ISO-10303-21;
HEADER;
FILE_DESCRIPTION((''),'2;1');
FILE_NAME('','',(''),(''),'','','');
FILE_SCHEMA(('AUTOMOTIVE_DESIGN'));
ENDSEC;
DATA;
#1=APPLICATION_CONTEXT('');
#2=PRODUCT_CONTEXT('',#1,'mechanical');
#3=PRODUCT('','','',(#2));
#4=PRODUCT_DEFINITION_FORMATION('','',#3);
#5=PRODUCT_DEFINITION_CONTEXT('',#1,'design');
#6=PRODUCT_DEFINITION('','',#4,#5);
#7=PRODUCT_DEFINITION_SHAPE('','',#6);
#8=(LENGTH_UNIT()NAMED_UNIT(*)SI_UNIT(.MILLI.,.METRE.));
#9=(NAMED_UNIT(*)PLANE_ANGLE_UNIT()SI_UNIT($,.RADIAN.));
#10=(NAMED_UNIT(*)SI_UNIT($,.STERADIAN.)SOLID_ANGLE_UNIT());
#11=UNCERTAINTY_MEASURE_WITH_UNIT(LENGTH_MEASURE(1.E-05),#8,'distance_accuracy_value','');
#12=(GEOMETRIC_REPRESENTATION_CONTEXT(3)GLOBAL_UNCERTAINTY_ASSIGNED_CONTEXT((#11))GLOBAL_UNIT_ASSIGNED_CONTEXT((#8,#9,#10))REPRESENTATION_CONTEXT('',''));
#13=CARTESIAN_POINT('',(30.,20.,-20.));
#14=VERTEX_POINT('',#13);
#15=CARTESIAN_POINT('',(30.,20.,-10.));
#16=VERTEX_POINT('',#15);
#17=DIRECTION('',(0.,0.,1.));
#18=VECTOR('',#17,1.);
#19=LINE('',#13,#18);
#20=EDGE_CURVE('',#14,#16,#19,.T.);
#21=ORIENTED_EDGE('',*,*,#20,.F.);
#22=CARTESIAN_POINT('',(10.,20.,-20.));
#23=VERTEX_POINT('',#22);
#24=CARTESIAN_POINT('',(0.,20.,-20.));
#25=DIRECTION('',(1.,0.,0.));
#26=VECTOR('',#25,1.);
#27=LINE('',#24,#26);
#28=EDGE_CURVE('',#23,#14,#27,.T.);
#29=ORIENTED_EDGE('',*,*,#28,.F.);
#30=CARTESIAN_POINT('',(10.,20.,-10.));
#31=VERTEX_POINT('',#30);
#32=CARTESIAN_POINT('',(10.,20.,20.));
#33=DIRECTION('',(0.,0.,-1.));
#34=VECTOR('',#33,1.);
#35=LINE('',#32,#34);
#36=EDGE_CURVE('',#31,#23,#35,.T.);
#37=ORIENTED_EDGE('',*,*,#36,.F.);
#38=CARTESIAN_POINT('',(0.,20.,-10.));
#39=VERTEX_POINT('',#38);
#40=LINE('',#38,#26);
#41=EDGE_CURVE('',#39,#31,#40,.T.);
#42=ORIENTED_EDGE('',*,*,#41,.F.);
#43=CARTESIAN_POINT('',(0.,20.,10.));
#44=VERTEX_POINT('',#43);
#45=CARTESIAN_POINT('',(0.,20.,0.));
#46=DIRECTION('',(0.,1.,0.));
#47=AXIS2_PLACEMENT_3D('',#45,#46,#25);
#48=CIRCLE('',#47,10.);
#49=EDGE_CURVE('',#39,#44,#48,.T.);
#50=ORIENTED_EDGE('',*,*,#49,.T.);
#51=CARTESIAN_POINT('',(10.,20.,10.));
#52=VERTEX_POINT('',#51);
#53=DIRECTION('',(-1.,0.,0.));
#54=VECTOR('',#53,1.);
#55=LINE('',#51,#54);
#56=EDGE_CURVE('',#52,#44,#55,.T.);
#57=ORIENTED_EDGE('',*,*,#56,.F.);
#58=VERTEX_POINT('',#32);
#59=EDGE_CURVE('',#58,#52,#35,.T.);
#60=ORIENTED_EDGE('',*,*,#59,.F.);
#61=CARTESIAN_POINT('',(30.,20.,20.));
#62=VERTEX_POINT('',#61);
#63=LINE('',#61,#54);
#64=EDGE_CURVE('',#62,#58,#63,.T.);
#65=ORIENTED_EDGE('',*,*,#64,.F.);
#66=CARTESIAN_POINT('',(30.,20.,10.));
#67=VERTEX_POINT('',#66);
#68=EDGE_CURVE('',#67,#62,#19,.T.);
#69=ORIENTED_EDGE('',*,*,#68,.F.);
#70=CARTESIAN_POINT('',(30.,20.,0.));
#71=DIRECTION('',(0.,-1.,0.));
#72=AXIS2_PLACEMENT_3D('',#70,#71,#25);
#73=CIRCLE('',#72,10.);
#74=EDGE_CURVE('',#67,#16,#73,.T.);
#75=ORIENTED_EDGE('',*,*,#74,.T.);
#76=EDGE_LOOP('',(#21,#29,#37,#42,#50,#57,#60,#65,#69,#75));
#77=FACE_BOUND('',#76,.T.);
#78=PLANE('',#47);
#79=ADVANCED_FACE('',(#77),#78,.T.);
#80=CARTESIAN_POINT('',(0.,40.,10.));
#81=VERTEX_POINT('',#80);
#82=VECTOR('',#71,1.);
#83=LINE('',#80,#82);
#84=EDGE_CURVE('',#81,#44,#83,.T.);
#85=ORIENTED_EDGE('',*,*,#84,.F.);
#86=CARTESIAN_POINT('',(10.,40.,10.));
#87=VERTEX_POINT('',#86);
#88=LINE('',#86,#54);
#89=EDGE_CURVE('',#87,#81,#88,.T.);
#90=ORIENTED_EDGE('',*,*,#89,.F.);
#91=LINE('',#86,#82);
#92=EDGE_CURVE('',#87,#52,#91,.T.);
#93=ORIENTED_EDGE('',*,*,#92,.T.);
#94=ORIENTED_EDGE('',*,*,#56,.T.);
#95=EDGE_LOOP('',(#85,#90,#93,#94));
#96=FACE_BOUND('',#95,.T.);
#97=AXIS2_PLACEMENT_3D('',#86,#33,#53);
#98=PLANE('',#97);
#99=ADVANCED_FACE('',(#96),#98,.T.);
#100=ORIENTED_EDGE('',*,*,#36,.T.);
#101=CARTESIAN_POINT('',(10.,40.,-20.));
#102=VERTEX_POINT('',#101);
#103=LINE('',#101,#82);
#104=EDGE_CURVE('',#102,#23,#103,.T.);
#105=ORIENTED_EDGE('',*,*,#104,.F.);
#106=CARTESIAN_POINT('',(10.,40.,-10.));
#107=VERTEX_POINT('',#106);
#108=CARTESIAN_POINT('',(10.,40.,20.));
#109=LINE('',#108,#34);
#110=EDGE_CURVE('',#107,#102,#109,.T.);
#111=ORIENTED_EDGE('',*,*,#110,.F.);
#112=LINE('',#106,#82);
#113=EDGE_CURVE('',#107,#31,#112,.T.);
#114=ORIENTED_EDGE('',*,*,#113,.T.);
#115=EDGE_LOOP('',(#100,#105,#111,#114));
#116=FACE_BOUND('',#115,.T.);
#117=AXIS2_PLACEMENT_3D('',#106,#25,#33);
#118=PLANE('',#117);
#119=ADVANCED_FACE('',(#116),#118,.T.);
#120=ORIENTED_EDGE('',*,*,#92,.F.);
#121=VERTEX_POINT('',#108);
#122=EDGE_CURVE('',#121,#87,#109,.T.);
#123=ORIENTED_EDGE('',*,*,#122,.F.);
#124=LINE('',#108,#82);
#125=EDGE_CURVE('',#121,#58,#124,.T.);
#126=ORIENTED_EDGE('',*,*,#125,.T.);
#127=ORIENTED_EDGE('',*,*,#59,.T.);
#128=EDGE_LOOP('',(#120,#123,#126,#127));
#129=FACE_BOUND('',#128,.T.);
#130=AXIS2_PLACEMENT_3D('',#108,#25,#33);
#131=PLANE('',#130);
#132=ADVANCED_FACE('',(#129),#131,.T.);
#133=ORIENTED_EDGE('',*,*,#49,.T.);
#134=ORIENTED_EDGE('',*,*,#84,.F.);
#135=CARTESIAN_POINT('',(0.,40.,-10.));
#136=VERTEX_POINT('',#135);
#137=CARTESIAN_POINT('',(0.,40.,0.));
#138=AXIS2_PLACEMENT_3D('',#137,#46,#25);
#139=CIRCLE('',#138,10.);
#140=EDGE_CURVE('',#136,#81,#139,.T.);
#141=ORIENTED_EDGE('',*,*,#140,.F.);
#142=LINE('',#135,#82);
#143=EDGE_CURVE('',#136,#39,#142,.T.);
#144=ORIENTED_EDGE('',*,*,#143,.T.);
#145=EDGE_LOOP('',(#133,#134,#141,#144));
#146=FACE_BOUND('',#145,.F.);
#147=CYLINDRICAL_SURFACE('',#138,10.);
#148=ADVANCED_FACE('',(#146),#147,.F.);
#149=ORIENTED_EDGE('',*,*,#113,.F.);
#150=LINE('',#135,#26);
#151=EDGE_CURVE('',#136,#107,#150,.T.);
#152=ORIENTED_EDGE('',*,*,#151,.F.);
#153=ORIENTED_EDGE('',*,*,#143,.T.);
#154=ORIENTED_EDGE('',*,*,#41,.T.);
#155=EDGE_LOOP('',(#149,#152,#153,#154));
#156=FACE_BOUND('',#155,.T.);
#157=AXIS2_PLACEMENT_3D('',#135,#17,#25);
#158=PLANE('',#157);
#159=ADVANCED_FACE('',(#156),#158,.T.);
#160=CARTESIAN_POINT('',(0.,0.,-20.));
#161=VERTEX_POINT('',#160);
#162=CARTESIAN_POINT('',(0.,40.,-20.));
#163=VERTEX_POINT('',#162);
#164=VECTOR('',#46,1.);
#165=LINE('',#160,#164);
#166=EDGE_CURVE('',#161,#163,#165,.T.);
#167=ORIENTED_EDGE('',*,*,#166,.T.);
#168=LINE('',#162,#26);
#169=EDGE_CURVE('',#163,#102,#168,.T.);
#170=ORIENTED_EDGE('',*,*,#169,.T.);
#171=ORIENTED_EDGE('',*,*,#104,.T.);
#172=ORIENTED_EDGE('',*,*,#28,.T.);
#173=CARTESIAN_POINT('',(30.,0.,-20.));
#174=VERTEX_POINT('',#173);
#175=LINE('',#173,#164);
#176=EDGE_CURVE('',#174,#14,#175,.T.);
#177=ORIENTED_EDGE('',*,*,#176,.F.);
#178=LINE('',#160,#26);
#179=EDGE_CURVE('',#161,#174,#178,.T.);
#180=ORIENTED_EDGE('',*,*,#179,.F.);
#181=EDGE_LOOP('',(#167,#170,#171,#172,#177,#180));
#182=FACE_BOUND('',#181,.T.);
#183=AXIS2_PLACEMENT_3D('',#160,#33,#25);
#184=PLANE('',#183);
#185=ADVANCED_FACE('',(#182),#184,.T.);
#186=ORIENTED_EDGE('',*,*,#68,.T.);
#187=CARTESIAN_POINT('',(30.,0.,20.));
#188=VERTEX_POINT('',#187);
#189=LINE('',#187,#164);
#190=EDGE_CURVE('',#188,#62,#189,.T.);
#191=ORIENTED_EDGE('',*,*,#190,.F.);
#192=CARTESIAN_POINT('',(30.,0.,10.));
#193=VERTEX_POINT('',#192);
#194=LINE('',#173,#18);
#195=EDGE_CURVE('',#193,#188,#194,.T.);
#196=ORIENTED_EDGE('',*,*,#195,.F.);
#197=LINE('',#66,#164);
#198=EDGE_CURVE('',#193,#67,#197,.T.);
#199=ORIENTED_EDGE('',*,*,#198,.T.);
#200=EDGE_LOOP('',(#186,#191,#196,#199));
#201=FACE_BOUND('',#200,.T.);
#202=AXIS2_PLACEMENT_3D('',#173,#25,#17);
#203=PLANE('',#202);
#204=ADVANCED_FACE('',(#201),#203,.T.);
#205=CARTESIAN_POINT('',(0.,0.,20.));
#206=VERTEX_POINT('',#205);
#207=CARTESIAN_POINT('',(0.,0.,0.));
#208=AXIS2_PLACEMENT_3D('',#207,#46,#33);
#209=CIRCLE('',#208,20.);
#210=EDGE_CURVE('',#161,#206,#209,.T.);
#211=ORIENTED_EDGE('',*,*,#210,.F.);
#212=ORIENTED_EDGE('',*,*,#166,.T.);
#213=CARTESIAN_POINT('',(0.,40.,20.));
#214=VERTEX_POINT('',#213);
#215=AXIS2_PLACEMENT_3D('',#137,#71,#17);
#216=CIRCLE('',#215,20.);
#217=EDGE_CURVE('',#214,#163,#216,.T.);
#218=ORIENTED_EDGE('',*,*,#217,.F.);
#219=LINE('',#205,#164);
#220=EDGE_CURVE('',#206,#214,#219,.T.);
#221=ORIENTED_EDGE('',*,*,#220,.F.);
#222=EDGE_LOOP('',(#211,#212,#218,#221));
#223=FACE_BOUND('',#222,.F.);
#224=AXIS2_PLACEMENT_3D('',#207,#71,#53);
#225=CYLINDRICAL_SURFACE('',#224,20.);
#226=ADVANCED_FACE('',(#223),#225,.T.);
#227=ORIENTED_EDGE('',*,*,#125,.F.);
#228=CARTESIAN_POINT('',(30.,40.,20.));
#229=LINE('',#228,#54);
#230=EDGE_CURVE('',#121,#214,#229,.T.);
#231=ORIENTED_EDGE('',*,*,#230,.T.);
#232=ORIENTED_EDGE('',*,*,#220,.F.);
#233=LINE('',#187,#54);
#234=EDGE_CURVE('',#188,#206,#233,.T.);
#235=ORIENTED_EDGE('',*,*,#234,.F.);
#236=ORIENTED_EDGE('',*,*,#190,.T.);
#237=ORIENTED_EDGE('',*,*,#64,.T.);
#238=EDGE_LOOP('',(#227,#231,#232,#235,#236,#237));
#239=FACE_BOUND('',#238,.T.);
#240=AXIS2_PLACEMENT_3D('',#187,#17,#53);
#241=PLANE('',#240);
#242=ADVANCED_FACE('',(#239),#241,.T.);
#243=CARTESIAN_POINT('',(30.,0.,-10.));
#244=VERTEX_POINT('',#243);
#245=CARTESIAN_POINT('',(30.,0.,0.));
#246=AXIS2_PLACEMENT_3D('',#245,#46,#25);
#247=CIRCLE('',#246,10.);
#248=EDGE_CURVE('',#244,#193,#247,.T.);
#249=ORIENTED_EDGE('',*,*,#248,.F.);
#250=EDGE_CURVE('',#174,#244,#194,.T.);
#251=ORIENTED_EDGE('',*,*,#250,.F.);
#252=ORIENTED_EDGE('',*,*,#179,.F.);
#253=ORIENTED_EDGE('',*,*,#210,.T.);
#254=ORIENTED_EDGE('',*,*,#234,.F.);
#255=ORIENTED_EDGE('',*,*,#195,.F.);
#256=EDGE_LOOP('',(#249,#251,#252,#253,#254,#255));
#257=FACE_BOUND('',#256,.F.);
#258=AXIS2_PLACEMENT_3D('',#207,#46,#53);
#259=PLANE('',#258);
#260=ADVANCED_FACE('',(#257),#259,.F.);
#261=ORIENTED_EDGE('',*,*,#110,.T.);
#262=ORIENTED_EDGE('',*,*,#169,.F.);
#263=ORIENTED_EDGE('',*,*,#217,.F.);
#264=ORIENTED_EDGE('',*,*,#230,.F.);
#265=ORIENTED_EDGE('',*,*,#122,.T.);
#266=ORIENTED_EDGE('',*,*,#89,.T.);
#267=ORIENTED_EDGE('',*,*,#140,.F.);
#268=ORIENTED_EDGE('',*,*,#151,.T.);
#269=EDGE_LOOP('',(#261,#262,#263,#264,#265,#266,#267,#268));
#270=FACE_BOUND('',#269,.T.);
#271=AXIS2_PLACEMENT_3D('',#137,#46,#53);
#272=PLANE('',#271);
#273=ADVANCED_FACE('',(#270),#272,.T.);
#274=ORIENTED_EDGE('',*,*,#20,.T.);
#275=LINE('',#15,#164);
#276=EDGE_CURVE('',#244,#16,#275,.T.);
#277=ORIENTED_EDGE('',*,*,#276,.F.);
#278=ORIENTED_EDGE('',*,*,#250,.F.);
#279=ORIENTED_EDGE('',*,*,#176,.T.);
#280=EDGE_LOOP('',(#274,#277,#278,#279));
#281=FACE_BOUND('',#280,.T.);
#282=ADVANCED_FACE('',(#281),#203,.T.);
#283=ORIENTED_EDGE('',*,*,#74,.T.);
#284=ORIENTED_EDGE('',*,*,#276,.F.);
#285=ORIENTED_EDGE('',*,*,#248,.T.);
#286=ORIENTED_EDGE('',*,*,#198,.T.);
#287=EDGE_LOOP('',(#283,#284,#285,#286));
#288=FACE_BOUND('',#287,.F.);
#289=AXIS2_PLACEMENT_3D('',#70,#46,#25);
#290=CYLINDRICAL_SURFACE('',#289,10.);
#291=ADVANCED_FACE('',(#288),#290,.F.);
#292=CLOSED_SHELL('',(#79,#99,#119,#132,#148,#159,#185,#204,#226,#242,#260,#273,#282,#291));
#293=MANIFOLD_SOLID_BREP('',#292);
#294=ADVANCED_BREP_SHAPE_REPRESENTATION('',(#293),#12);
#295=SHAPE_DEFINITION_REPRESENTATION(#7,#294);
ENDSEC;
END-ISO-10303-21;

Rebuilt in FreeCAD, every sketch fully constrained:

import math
import FreeCAD as App
import Part
import Sketcher

V = App.Vector

doc = App.newDocument("Part")
params = doc.addObject("Spreadsheet::Sheet", "Params")
for row, (alias, value) in enumerate([
    ("sketch1_radius", "20 mm"),
    ("sketch1_width", "30 mm"),
    ("pad1_length", "40 mm"),
    ("sketch2_radius", "10 mm"),
    ("sketch2_width", "20 mm"),
    ("sketch2_width2", "10 mm"),
    ("pocket1_length", "20 mm"),
    ("sketch3_diameter", "20 mm"),
], start=1):
    params.set(f"A{row}", alias)
    params.set(f"B{row}", "=" + value)
    params.setAlias(f"B{row}", alias)

body = doc.addObject("PartDesign::Body", "Body")

# Sketch on XZ plane
sketch1 = body.newObject("Sketcher::SketchObject", "Sketch")
sketch1.AttachmentSupport = (doc.getObject("XZ_Plane"), [""])
sketch1.MapMode = "FlatFace"
sketch1.addGeometry([
    Part.ArcOfCircle(Part.Circle(V(0, 0, 0), V(0, 0, 1), 20), math.radians(90), math.radians(270)),
    Part.LineSegment(V(0, 20, 0), V(30, 20, 0)),
    Part.LineSegment(V(30, 20, 0), V(30, -20, 0)),
    Part.LineSegment(V(30, -20, 0), V(0, -20, 0)),
], False)
sketch1.addConstraint([
    Sketcher.Constraint("Tangent", 0, 1, 1, 1),
    Sketcher.Constraint("Coincident", 1, 2, 2, 1),
    Sketcher.Constraint("Coincident", 2, 2, 3, 1),
    Sketcher.Constraint("Tangent", 3, 2, 0, 2),
    Sketcher.Constraint("Horizontal", 1),
    Sketcher.Constraint("Vertical", 2),
    Sketcher.Constraint("Horizontal", 3),
    Sketcher.Constraint("Coincident", 0, 3, -1, 1),
    Sketcher.Constraint("Radius", 0, 20.0),
    Sketcher.Constraint("DistanceX", 1, 1, 1, 2, 30.0),
])
sketch1.setExpression("Constraints[8]", "Params.sketch1_radius")
sketch1.setExpression("Constraints[9]", "Params.sketch1_width")
pad1 = body.newObject("PartDesign::Pad", "Pad")
pad1.Profile = sketch1
pad1.setExpression("Length", "Params.pad1_length")
pad1.Reversed = True

# Sketch on XZ plane
sketch2 = body.newObject("Sketcher::SketchObject", "Sketch001")
sketch2.AttachmentSupport = (doc.getObject("XZ_Plane"), [""])
sketch2.MapMode = "FlatFace"
sketch2.AttachmentOffset = App.Placement(V(0, 0, -40), App.Rotation())
sketch2.addGeometry([
    Part.LineSegment(V(10, 20, 0), V(30, 20, 0)),  # 0
    Part.LineSegment(V(30, 20, 0), V(30, -20, 0)),  # 1
    Part.LineSegment(V(30, -20, 0), V(10, -20, 0)),  # 2
    Part.LineSegment(V(10, -20, 0), V(10, -10, 0)),  # 3
    Part.LineSegment(V(10, -10, 0), V(0, -10, 0)),  # 4
    Part.ArcOfCircle(Part.Circle(V(0, 0, 0), V(0, 0, 1), 10), math.radians(90), math.radians(270)),  # 5
    Part.LineSegment(V(0, 10, 0), V(10, 10, 0)),  # 6
    Part.LineSegment(V(10, 10, 0), V(10, 20, 0)),  # 7
], False)
sketch2.addConstraint([
    Sketcher.Constraint("Coincident", 0, 2, 1, 1),
    Sketcher.Constraint("Coincident", 1, 2, 2, 1),
    Sketcher.Constraint("Coincident", 2, 2, 3, 1),
    Sketcher.Constraint("Coincident", 3, 2, 4, 1),
    Sketcher.Constraint("Tangent", 4, 2, 5, 2),
    Sketcher.Constraint("Tangent", 5, 1, 6, 1),
    Sketcher.Constraint("Coincident", 6, 2, 7, 1),
    Sketcher.Constraint("Coincident", 7, 2, 0, 1),
    Sketcher.Constraint("Horizontal", 0),
    Sketcher.Constraint("Vertical", 1),
    Sketcher.Constraint("Horizontal", 2),
    Sketcher.Constraint("Vertical", 3),
    Sketcher.Constraint("Horizontal", 4),
    Sketcher.Constraint("Horizontal", 6),
    Sketcher.Constraint("Vertical", 7),
    Sketcher.Constraint("Coincident", 5, 3, -1, 1),
    Sketcher.Constraint("Symmetric", 2, 2, 7, 2, -1),
    Sketcher.Constraint("Equal", 6, 3),
    Sketcher.Constraint("Radius", 5, 10.0),
    Sketcher.Constraint("DistanceX", 0, 1, 0, 2, 20.0),
    Sketcher.Constraint("DistanceX", 4, 2, 4, 1, 10.0),
])
sketch2.setExpression("Constraints[18]", "Params.sketch2_radius")
sketch2.setExpression("Constraints[19]", "Params.sketch2_width")
sketch2.setExpression("Constraints[20]", "Params.sketch2_width2")
pocket1 = body.newObject("PartDesign::Pocket", "Pocket")
pocket1.Profile = sketch2
pocket1.setExpression("Length", "Params.pocket1_length")
pocket1.Reversed = True

# Sketch on XZ plane
sketch3 = body.newObject("Sketcher::SketchObject", "Sketch002")
sketch3.AttachmentSupport = (doc.getObject("XZ_Plane"), [""])
sketch3.MapMode = "FlatFace"
sketch3.AttachmentOffset = App.Placement(V(0, 0, -20), App.Rotation())
sketch3.addGeometry(Part.Circle(V(30, 0, 0), V(0, 0, 1), 10), False)
sketch3.addConstraint([
    Sketcher.Constraint("PointOnObject", 0, 3, -1),
    Sketcher.Constraint("Diameter", 0, 20.0),
    Sketcher.Constraint("DistanceX", -1, 1, 0, 3, 30.0),
])
sketch3.setExpression("Constraints[1]", "Params.sketch3_diameter")
pocket2 = body.newObject("PartDesign::Pocket", "Pocket001")
pocket2.Profile = sketch3
pocket2.Type = "ThroughAll"
pocket2.Reversed = True

doc.recompute()
